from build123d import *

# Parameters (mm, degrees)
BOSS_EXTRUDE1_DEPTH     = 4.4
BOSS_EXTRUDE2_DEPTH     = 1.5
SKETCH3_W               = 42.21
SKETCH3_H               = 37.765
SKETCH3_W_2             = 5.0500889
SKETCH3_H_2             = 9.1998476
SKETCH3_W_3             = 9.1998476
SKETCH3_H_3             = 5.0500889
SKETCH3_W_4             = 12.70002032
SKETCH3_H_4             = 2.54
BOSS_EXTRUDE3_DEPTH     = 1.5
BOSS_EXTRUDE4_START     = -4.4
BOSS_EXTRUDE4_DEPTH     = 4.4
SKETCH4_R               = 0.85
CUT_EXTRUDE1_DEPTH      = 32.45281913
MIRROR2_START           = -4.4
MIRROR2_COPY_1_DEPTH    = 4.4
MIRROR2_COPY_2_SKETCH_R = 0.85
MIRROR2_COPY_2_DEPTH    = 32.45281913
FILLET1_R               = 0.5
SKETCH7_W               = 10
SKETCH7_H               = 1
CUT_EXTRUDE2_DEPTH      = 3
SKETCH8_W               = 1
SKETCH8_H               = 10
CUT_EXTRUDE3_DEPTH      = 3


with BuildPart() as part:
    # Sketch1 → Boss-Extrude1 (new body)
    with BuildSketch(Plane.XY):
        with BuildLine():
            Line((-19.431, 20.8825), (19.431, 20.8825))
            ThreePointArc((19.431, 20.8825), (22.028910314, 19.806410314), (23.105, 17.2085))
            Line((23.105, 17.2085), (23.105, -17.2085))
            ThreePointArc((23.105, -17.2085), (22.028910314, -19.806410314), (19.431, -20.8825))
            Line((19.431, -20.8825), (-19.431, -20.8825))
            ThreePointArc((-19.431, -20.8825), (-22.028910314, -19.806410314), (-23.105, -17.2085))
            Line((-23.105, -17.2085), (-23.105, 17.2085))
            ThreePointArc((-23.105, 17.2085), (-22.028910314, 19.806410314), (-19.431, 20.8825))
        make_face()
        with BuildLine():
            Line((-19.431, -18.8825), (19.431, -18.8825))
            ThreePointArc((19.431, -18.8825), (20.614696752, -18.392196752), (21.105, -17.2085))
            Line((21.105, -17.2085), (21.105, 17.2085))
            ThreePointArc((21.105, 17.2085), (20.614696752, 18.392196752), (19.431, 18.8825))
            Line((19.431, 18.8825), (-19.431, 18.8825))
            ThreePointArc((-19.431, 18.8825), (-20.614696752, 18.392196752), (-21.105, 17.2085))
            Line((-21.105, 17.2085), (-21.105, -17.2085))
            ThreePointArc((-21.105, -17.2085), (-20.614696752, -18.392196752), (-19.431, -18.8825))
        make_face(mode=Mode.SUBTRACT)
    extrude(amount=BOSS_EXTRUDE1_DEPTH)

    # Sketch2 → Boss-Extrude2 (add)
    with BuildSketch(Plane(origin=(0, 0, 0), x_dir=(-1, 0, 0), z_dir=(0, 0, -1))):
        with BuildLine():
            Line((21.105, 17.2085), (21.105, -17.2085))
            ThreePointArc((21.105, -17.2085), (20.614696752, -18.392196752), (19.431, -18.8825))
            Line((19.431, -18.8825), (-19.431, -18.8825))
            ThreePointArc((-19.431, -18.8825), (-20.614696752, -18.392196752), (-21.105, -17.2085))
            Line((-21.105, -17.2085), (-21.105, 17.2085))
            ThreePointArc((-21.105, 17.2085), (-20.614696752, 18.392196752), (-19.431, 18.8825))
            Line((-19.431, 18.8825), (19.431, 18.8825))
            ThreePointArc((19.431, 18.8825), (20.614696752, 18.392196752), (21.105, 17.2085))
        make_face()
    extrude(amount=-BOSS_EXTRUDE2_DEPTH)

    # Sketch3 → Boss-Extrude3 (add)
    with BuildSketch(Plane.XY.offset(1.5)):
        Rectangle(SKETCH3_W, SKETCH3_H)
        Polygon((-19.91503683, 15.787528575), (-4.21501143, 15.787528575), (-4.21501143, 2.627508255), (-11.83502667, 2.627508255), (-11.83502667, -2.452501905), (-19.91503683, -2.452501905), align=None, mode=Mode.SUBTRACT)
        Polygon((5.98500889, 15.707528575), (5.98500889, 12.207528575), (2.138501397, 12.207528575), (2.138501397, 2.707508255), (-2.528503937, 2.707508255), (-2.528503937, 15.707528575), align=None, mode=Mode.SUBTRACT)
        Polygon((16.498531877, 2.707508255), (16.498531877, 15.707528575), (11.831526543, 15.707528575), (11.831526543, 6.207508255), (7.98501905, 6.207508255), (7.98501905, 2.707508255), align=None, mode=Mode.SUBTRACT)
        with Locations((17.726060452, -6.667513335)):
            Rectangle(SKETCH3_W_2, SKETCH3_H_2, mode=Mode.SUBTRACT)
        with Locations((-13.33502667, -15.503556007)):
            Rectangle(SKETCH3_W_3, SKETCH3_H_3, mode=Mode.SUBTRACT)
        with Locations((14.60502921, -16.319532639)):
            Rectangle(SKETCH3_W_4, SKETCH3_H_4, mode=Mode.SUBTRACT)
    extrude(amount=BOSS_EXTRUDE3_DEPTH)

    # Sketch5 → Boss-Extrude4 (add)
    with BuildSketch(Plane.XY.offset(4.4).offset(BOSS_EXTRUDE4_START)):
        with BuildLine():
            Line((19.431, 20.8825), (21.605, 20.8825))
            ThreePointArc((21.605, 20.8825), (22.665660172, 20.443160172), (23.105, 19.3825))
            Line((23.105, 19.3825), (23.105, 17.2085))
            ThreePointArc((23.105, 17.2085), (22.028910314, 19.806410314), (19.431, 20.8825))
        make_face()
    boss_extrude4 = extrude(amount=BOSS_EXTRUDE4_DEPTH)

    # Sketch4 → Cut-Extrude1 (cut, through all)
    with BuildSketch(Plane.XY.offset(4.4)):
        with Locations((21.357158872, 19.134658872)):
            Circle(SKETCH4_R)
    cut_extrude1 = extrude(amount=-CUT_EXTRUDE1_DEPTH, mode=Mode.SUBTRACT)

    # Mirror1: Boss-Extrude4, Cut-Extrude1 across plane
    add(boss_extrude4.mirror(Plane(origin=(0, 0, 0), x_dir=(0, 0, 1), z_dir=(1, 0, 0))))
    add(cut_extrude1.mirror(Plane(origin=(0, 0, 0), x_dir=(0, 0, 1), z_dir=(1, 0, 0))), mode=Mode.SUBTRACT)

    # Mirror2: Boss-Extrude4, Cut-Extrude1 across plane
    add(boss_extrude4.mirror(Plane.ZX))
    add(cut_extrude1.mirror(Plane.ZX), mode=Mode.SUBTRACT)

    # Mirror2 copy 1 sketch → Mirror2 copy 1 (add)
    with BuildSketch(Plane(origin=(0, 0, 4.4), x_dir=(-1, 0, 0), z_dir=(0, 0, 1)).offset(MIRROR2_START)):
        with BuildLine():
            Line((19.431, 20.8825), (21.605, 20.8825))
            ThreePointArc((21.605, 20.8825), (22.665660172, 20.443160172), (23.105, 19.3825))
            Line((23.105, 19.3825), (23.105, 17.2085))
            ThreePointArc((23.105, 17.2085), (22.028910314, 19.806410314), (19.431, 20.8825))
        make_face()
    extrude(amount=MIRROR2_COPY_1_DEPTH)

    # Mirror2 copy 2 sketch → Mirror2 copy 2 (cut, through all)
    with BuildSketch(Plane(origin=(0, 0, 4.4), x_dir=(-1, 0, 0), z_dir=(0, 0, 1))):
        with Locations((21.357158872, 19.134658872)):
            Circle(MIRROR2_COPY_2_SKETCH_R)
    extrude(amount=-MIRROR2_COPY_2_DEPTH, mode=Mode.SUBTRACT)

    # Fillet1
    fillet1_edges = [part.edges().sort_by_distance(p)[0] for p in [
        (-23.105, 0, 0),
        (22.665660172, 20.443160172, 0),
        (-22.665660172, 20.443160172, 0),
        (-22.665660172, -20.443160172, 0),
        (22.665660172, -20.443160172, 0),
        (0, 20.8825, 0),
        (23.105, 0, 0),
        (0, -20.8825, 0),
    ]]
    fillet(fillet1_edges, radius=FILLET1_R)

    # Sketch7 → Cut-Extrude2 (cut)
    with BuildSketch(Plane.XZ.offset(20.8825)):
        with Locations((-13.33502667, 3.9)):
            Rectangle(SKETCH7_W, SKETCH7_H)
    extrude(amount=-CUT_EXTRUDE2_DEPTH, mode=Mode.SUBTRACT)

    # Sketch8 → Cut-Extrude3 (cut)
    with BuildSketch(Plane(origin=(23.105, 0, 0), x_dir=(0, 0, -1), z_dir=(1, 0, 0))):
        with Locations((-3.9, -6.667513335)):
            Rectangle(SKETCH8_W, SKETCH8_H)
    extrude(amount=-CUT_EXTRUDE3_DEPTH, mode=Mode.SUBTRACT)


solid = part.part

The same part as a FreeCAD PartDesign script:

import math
import FreeCAD as App
import Part
import Sketcher


def edges_at(feature, points):
    """Names of the edges that pass closest to the given points."""
    edges = feature.Shape.Edges
    near = lambda p: min(range(len(edges)), key=lambda i: edges[i].distToShape(Part.Vertex(*p))[0])
    return sorted({f"Edge{near(p) + 1}" for p in points})


def add_polygon(sketch, points):
    """Adds a closed chain of lines whose ends are joined by coincident constraints."""
    first, n = sketch.GeometryCount, len(points)
    for a, b in zip(points, points[1:] + points[:1]):
        sketch.addGeometry(Part.LineSegment(App.Vector(*a, 0), App.Vector(*b, 0)), False)
    for i in range(n):
        sketch.addConstraint(Sketcher.Constraint("Coincident", first + i, 2, first + (i + 1) % n, 1))

doc = App.newDocument("Part")
params = doc.addObject("Spreadsheet::Sheet", "Params")
for row, (alias, value) in enumerate([
    ("pad1_length", "4.4 mm"),
    ("pad2_length", "1.5 mm"),
    ("sketch3_height", "3.5 mm"),
    ("sketch3_width", "42.21 mm"),
    ("sketch3_height2", "2.54 mm"),
    ("pad3_length", "1.5 mm"),
    ("sketch4_radius", "1.5 mm"),
    ("pad4_length", "4.4 mm"),
    ("sketch5_diameter", "1.7 mm"),
    ("sketch6_radius", "1.5 mm"),
    ("pad5_length", "4.4 mm"),
    ("sketch7_diameter", "1.7 mm"),
    ("fillet_radius", "0.5 mm"),
    ("sketch8_width", "10 mm"),
    ("sketch8_height", "1 mm"),
    ("pocket3_length", "3 mm"),
    ("sketch9_width", "10 mm"),
    ("sketch9_height", "1 mm"),
    ("pocket4_length", "3 mm"),
], start=1):
    params.set(f"A{row}", alias)
    params.set(f"B{row}", "=" + value)
    params.setAlias(f"B{row}", alias)

body = doc.addObject("PartDesign::Body", "Body")

sketch1 = body.newObject("Sketcher::SketchObject", "Sketch")
sketch1.AttachmentSupport = (doc.getObject("XY_Plane"), [""])
sketch1.MapMode = "FlatFace"
sketch1.addGeometry([
    Part.LineSegment(App.Vector(19.4, 20.9, 0), App.Vector(-19.4, 20.9, 0)),
    Part.ArcOfCircle(Part.Circle(App.Vector(-19.4, 17.2, 0), App.Vector(0, 0, 1), 3.7), math.radians(90), math.radians(180)),
    Part.LineSegment(App.Vector(-23.1, 17.2, 0), App.Vector(-23.1, -17.2, 0)),
    Part.ArcOfCircle(Part.Circle(App.Vector(-19.4, -17.2, 0), App.Vector(0, 0, 1), 3.7), math.radians(180), math.radians(270)),
    Part.LineSegment(App.Vector(-19.4, -20.9, 0), App.Vector(19.4, -20.9, 0)),
    Part.ArcOfCircle(Part.Circle(App.Vector(19.4, -17.2, 0), App.Vector(0, 0, 1), 3.7), math.radians(-90), math.radians(0)),
    Part.LineSegment(App.Vector(23.1, -17.2, 0), App.Vector(23.1, 17.2, 0)),
    Part.ArcOfCircle(Part.Circle(App.Vector(19.4, 17.2, 0), App.Vector(0, 0, 1), 3.7), math.radians(0), math.radians(90)),
    Part.ArcOfCircle(Part.Circle(App.Vector(-19.4, -17.2, 0), App.Vector(0, 0, 1), 1.7), math.radians(180), math.radians(270)),
    Part.LineSegment(App.Vector(-21.1, -17.2, 0), App.Vector(-21.1, 17.2, 0)),
    Part.ArcOfCircle(Part.Circle(App.Vector(-19.4, 17.2, 0), App.Vector(0, 0, 1), 1.7), math.radians(90), math.radians(180)),
    Part.LineSegment(App.Vector(-19.4, 18.9, 0), App.Vector(19.4, 18.9, 0)),
    Part.ArcOfCircle(Part.Circle(App.Vector(19.4, 17.2, 0), App.Vector(0, 0, 1), 1.7), math.radians(0), math.radians(90)),
    Part.LineSegment(App.Vector(21.1, 17.2, 0), App.Vector(21.1, -17.2, 0)),
    Part.ArcOfCircle(Part.Circle(App.Vector(19.4, -17.2, 0), App.Vector(0, 0, 1), 1.7), math.radians(-90), math.radians(0)),
    Part.LineSegment(App.Vector(19.4, -18.9, 0), App.Vector(-19.4, -18.9, 0)),
], False)
sketch1.addConstraint([
    Sketcher.Constraint("Tangent", 0, 2, 1, 1),
    Sketcher.Constraint("Tangent", 1, 2, 2, 1),
    Sketcher.Constraint("Tangent", 2, 2, 3, 1),
    Sketcher.Constraint("Tangent", 3, 2, 4, 1),
    Sketcher.Constraint("Tangent", 4, 2, 5, 1),
    Sketcher.Constraint("Tangent", 5, 2, 6, 1),
    Sketcher.Constraint("Tangent", 6, 2, 7, 1),
    Sketcher.Constraint("Tangent", 7, 2, 0, 1),
    Sketcher.Constraint("Tangent", 8, 1, 9, 1),
    Sketcher.Constraint("Tangent", 9, 2, 10, 2),
    Sketcher.Constraint("Tangent", 10, 1, 11, 1),
    Sketcher.Constraint("Tangent", 11, 2, 12, 2),
    Sketcher.Constraint("Tangent", 12, 1, 13, 1),
    Sketcher.Constraint("Tangent", 13, 2, 14, 2),
    Sketcher.Constraint("Tangent", 14, 1, 15, 1),
    Sketcher.Constraint("Tangent", 15, 2, 8, 2),
    Sketcher.Constraint("Horizontal", 0),
    Sketcher.Constraint("Vertical", 2),
    Sketcher.Constraint("Horizontal", 4),
    Sketcher.Constraint("Vertical", 6),
    Sketcher.Constraint("Vertical", 9),
    Sketcher.Constraint("Horizontal", 11),
    Sketcher.Constraint("Vertical", 13),
    Sketcher.Constraint("Horizontal", 15),
    Sketcher.Constraint("Coincident", 8, 3, 3, 3),
    Sketcher.Constraint("Coincident", 10, 3, 1, 3),
    Sketcher.Constraint("Coincident", 12, 3, 7, 3),
    Sketcher.Constraint("Equal", 1, 3),
    Sketcher.Constraint("Equal", 3, 5),
    Sketcher.Constraint("Equal", 5, 7),
    Sketcher.Constraint("Equal", 12, 14),
    Sketcher.Constraint("Symmetric", 1, 3, 5, 3, -1, 1),
    Sketcher.Constraint("Radius", 1, 3.674),
    Sketcher.Constraint("Radius", 8, 1.674),
    Sketcher.Constraint("DistanceX", 0, 2, 0, 1, 38.862),
    Sketcher.Constraint("DistanceY", 2, 2, 2, 1, 34.417),
])
pad1 = body.newObject("PartDesign::Pad", "Pad")
pad1.Profile = sketch1
pad1.setExpression("Length", "Params.pad1_length")

sketch2 = body.newObject("Sketcher::SketchObject", "Sketch001")
sketch2.AttachmentSupport = (doc.getObject("XY_Plane"), [""])
sketch2.MapMode = "FlatFace"
sketch2.addGeometry([
    Part.LineSegment(App.Vector(-21.1, -17.2, 0), App.Vector(-21.1, 17.2, 0)),
    Part.ArcOfCircle(Part.Circle(App.Vector(-19.4, 17.2, 0), App.Vector(0, 0, 1), 1.7), math.radians(90), math.radians(180)),
    Part.LineSegment(App.Vector(-19.4, 18.9, 0), App.Vector(19.4, 18.9, 0)),
    Part.ArcOfCircle(Part.Circle(App.Vector(19.4, 17.2, 0), App.Vector(0, 0, 1), 1.7), math.radians(0), math.radians(90)),
    Part.LineSegment(App.Vector(21.1, 17.2, 0), App.Vector(21.1, -17.2, 0)),
    Part.ArcOfCircle(Part.Circle(App.Vector(19.4, -17.2, 0), App.Vector(0, 0, 1), 1.7), math.radians(-90), math.radians(0)),
    Part.LineSegment(App.Vector(19.4, -18.9, 0), App.Vector(-19.4, -18.9, 0)),
    Part.ArcOfCircle(Part.Circle(App.Vector(-19.4, -17.2, 0), App.Vector(0, 0, 1), 1.7), math.radians(180), math.radians(270)),
], False)
sketch2.addConstraint([
    Sketcher.Constraint("Tangent", 0, 2, 1, 2),
    Sketcher.Constraint("Tangent", 1, 1, 2, 1),
    Sketcher.Constraint("Tangent", 2, 2, 3, 2),
    Sketcher.Constraint("Tangent", 3, 1, 4, 1),
    Sketcher.Constraint("Tangent", 4, 2, 5, 2),
    Sketcher.Constraint("Tangent", 5, 1, 6, 1),
    Sketcher.Constraint("Tangent", 6, 2, 7, 2),
    Sketcher.Constraint("Tangent", 7, 1, 0, 1),
    Sketcher.Constraint("Vertical", 0),
    Sketcher.Constraint("Horizontal", 2),
    Sketcher.Constraint("Vertical", 4),
    Sketcher.Constraint("Horizontal", 6),
    Sketcher.Constraint("Equal", 1, 3),
    Sketcher.Constraint("Equal", 3, 5),
    Sketcher.Constraint("Equal", 5, 7),
    Sketcher.Constraint("Symmetric", 1, 3, 5, 3, -1, 1),
    Sketcher.Constraint("Radius", 1, 1.674),
    Sketcher.Constraint("DistanceX", 2, 1, 2, 2, 38.862),
    Sketcher.Constraint("DistanceY", 0, 1, 0, 2, 34.417),
])
pad2 = body.newObject("PartDesign::Pad", "Pad001")
pad2.Profile = sketch2
pad2.setExpression("Length", "Params.pad2_length")

sketch3 = body.newObject("Sketcher::SketchObject", "Sketch002")
sketch3.AttachmentSupport = (doc.getObject("XY_Plane"), [""])
sketch3.MapMode = "FlatFace"
sketch3.AttachmentOffset = App.Placement(App.Vector(0, 0, 1.5), App.Rotation())
add_polygon(sketch3, [(-21.1, 18.9), (-21.1, -18.9), (21.1, -18.9), (21.1, 18.9)])
add_polygon(sketch3, [(-8.7, -18), (-17.9, -18), (-17.9, -13), (-8.7, -13)])
add_polygon(sketch3, [(21, -17.6), (8.3, -17.6), (8.3, -15), (21, -15)])
add_polygon(sketch3, [(20.3, -11.3), (15.2, -11.3), (15.2, -2.1), (20.3, -2.1)])
add_polygon(sketch3, [(-19.9, -2.5), (-19.9, 15.8), (-4.2, 15.8), (-4.2, 2.6), (-11.8, 2.6), (-11.8, -2.5)])
add_polygon(sketch3, [(-2.5, 15.7), (6, 15.7), (6, 12.2), (2.1, 12.2), (2.1, 2.7), (-2.5, 2.7)])
add_polygon(sketch3, [(16.5, 15.7), (16.5, 2.7), (8, 2.7), (8, 6.2), (11.8, 6.2), (11.8, 15.7)])
sketch3.addConstraint([
    Sketcher.Constraint("Vertical", 0),
    Sketcher.Constraint("Horizontal", 1),
    Sketcher.Constraint("Vertical", 2),
    Sketcher.Constraint("Horizontal", 3),
    Sketcher.Constraint("Horizontal", 4),
    Sketcher.Constraint("Vertical", 5),
    Sketcher.Constraint("Horizontal", 6),
    Sketcher.Constraint("Vertical", 7),
    Sketcher.Constraint("Horizontal", 8),
    Sketcher.Constraint("Vertical", 9),
    Sketcher.Constraint("Horizontal", 10),
    Sketcher.Constraint("Vertical", 11),
    Sketcher.Constraint("Horizontal", 12),
    Sketcher.Constraint("Vertical", 13),
    Sketcher.Constraint("Horizontal", 14),
    Sketcher.Constraint("Vertical", 15),
    Sketcher.Constraint("Vertical", 16),
    Sketcher.Constraint("Horizontal", 17),
    Sketcher.Constraint("Vertical", 18),
    Sketcher.Constraint("Horizontal", 19),
    Sketcher.Constraint("Vertical", 20),
    Sketcher.Constraint("Horizontal", 21),
    Sketcher.Constraint("Horizontal", 22),
    Sketcher.Constraint("Vertical", 23),
    Sketcher.Constraint("Horizontal", 24),
    Sketcher.Constraint("Vertical", 25),
    Sketcher.Constraint("Horizontal", 26),
    Sketcher.Constraint("Vertical", 27),
    Sketcher.Constraint("Vertical", 28),
    Sketcher.Constraint("Horizontal", 29),
    Sketcher.Constraint("Vertical", 30),
    Sketcher.Constraint("Horizontal", 31),
    Sketcher.Constraint("Vertical", 32),
    Sketcher.Constraint("Horizontal", 33),
    Sketcher.Constraint("Symmetric", 0, 2, 2, 2, -1, 1),
    Sketcher.Constraint("Horizontal", 26, 2, 28, 2),
    Sketcher.Constraint("Horizontal", 27, 2, 32, 2),
    Sketcher.Constraint("Equal", 22, 29),
    Sketcher.Constraint("Equal", 24, 31),
    Sketcher.Constraint("Equal", 14, 5),
    Sketcher.Constraint("Equal", 6, 13),
    Sketcher.Constraint("Equal", 23, 30),
    Sketcher.Constraint("DistanceY", 23, 2, 23, 1, 3.5),
    Sketcher.Constraint("DistanceX", 1, 1, 1, 2, 42.21),
    Sketcher.Constraint("DistanceY", 9, 1, 9, 2, 2.54),
    Sketcher.Constraint("DistanceY", 0, 2, 0, 1, 37.765),
    Sketcher.Constraint("DistanceY", 22, 2, 17, 2, 0.08),
    Sketcher.Constraint("DistanceY", 18, 2, 25, 2, 0.08),
    Sketcher.Constraint("DistanceX", 8, 2, 8, 1, 12.70002),
    Sketcher.Constraint("DistanceX", 12, 2, 12, 1, 5.050089),
    Sketcher.Constraint("DistanceX", 21, 2, 21, 1, 8.08001),
    Sketcher.Constraint("DistanceY", 16, 1, 16, 2, 18.24003),
    Sketcher.Constraint("DistanceY", 18, 2, 18, 1, 13.16002),
    Sketcher.Constraint("DistanceY", 4, 2, -1, 1, 18.0286),
    Sketcher.Constraint("DistanceY", 20, 2, -1, 1, 2.452502),
    Sketcher.Constraint("DistanceX", -1, 1, 24, 2, 2.138501),
    Sketcher.Constraint("DistanceX", 4, 2, 4, 1, 9.199848),
    Sketcher.Constraint("DistanceX", 17, 1, 17, 2, 15.700025),
    Sketcher.Constraint("DistanceX", 22, 1, 22, 2, 8.513513),
    Sketcher.Constraint("DistanceX", 24, 2, 24, 1, 3.846507),
    Sketcher.Constraint("DistanceX", 4, 2, -1, 1, 17.93495),
    Sketcher.Constraint("DistanceX", -1, 1, 8, 2, 8.255019),
    Sketcher.Constraint("DistanceY", 13, 2, -1, 1, 2.06759),
    Sketcher.Constraint("DistanceX", 17, 2, -1, 1, 4.215011),
    Sketcher.Constraint("DistanceX", -1, 1, 28, 2, 16.498532),
    Sketcher.Constraint("DistanceY", 8, 2, 6, 2, 4.611021),
    Sketcher.Constraint("DistanceX", 31, 2, 13, 2, 3.369489),
])
sketch3.setExpression("Constraints[76]", "Params.sketch3_height")
sketch3.setExpression("Constraints[77]", "Params.sketch3_width")
sketch3.setExpression("Constraints[78]", "Params.sketch3_height2")
pad3 = body.newObject("PartDesign::Pad", "Pad002")
pad3.Profile = sketch3
pad3.setExpression("Length", "Params.pad3_length")

sketch4 = body.newObject("Sketcher::SketchObject", "Sketch003")
sketch4.AttachmentSupport = (doc.getObject("XY_Plane"), [""])
sketch4.MapMode = "FlatFace"
sketch4.addGeometry([
    Part.LineSegment(App.Vector(21.6, 20.9, 0), App.Vector(19.4, 20.9, 0)),
    Part.ArcOfCircle(Part.Circle(App.Vector(19.4, 17.2, 0), App.Vector(0, 0, 1), 3.7), math.radians(0), math.radians(90)),
    Part.LineSegment(App.Vector(23.1, 17.2, 0), App.Vector(23.1, 19.4, 0)),
    Part.ArcOfCircle(Part.Circle(App.Vector(21.6, 19.4, 0), App.Vector(0, 0, 1), 1.5), math.radians(0), math.radians(90)),
], False)
sketch4.addConstraint([
    Sketcher.Constraint("Tangent", 0, 2, 1, 2),
    Sketcher.Constraint("Tangent", 1, 1, 2, 1),
    Sketcher.Constraint("Tangent", 2, 2, 3, 1),
    Sketcher.Constraint("Tangent", 3, 2, 0, 1),
    Sketcher.Constraint("Horizontal", 0),
    Sketcher.Constraint("Vertical", 2),
    Sketcher.Constraint("Radius", 3, 1.5),
    Sketcher.Constraint("Radius", 1, 3.674),
    Sketcher.Constraint("DistanceX", -1, 1, 1, 3, 19.431),
    Sketcher.Constraint("DistanceY", -1, 1, 1, 3, 17.2085),
])
sketch4.setExpression("Constraints[6]", "Params.sketch4_radius")
pad4 = body.newObject("PartDesign::Pad", "Pad003")
pad4.Profile = sketch4
pad4.setExpression("Length", "Params.pad4_length")

sketch5 = body.newObject("Sketcher::SketchObject", "Sketch004")
sketch5.AttachmentSupport = (doc.getObject("XY_Plane"), [""])
sketch5.MapMode = "FlatFace"
sketch5.AttachmentOffset = App.Placement(App.Vector(0, 0, 4.4), App.Rotation())
sketch5.addGeometry(Part.Circle(App.Vector(21.4, 19.1, 0), App.Vector(0, 0, 1), 0.8), False)
sketch5.addConstraint([
    Sketcher.Constraint("Diameter", 0, 1.7),
    Sketcher.Constraint("DistanceX", -1, 1, 0, 3, 21.357159),
    Sketcher.Constraint("DistanceY", -1, 1, 0, 3, 19.134659),
])
sketch5.setExpression("Constraints[0]", "Params.sketch5_diameter")
pocket1 = body.newObject("PartDesign::Pocket", "Pocket")
pocket1.Profile = sketch5
pocket1.Type = "ThroughAll"
doc.recompute()

mirrored = body.newObject("PartDesign::Mirrored", "Mirrored")
mirrored.Originals = [pad4, pocket1]
mirrored.MirrorPlane = (doc.getObject("YZ_Plane"), [""])
body.Tip = mirrored
doc.recompute()

mirrored2 = body.newObject("PartDesign::Mirrored", "Mirrored001")
mirrored2.Originals = [pad4, pocket1]
mirrored2.MirrorPlane = (doc.getObject("XZ_Plane"), [""])
body.Tip = mirrored2

sketch6 = body.newObject("Sketcher::SketchObject", "Sketch005")
sketch6.AttachmentSupport = (doc.getObject("XY_Plane"), [""])
sketch6.MapMode = "FlatFace"
sketch6.addGeometry([
    Part.LineSegment(App.Vector(-21.6, -20.9, 0), App.Vector(-19.4, -20.9, 0)),
    Part.ArcOfCircle(Part.Circle(App.Vector(-19.4, -17.2, 0), App.Vector(0, 0, 1), 3.7), math.radians(180), math.radians(270)),
    Part.LineSegment(App.Vector(-23.1, -17.2, 0), App.Vector(-23.1, -19.4, 0)),
    Part.ArcOfCircle(Part.Circle(App.Vector(-21.6, -19.4, 0), App.Vector(0, 0, 1), 1.5), math.radians(180), math.radians(270)),
], False)
sketch6.addConstraint([
    Sketcher.Constraint("Tangent", 0, 2, 1, 2),
    Sketcher.Constraint("Tangent", 1, 1, 2, 1),
    Sketcher.Constraint("Tangent", 2, 2, 3, 1),
    Sketcher.Constraint("Tangent", 3, 2, 0, 1),
    Sketcher.Constraint("Horizontal", 0),
    Sketcher.Constraint("Vertical", 2),
    Sketcher.Constraint("Radius", 3, 1.5),
    Sketcher.Constraint("Radius", 1, 3.674),
    Sketcher.Constraint("DistanceX", 1, 3, -1, 1, 19.431),
    Sketcher.Constraint("DistanceY", 1, 3, -1, 1, 17.2085),
])
sketch6.setExpression("Constraints[6]", "Params.sketch6_radius")
pad5 = body.newObject("PartDesign::Pad", "Pad004")
pad5.Profile = sketch6
pad5.setExpression("Length", "Params.pad5_length")

sketch7 = body.newObject("Sketcher::SketchObject", "Sketch006")
sketch7.AttachmentSupport = (doc.getObject("XY_Plane"), [""])
sketch7.MapMode = "FlatFace"
sketch7.AttachmentOffset = App.Placement(App.Vector(0, 0, 4.4), App.Rotation())
sketch7.addGeometry(Part.Circle(App.Vector(-21.4, -19.1, 0), App.Vector(0, 0, 1), 0.8), False)
sketch7.addConstraint([
    Sketcher.Constraint("Diameter", 0, 1.7),
    Sketcher.Constraint("DistanceX", 0, 3, -1, 1, 21.357159),
    Sketcher.Constraint("DistanceY", 0, 3, -1, 1, 19.134659),
])
sketch7.setExpression("Constraints[0]", "Params.sketch7_diameter")
pocket2 = body.newObject("PartDesign::Pocket", "Pocket001")
pocket2.Profile = sketch7
pocket2.Type = "ThroughAll"
doc.recompute()

fillet = body.newObject("PartDesign::Fillet", "Fillet")
fillet.Base = (pocket2, edges_at(pocket2, [
    (-23.105, 0, 0),
    (22.666, 20.443, 0),
    (-22.666, 20.443, 0),
    (-22.666, -20.443, 0),
    (22.666, -20.443, 0),
    (0, 20.883, 0),
    (23.105, 0, 0),
    (0, -20.883, 0),
]))
fillet.setExpression("Radius", "Params.fillet_radius")

sketch8 = body.newObject("Sketcher::SketchObject", "Sketch007")
sketch8.AttachmentSupport = (doc.getObject("XZ_Plane"), [""])
sketch8.MapMode = "FlatFace"
sketch8.AttachmentOffset = App.Placement(App.Vector(0, 0, 20.8825), App.Rotation())
add_polygon(sketch8, [(-18.3, 4.4), (-18.3, 3.4), (-8.3, 3.4), (-8.3, 4.4)])
sketch8.addConstraint([
    Sketcher.Constraint("Vertical", 0),
    Sketcher.Constraint("Horizontal", 1),
    Sketcher.Constraint("Vertical", 2),
    Sketcher.Constraint("Horizontal", 3),
    Sketcher.Constraint("DistanceX", 1, 1, 1, 2, 10.0),
    Sketcher.Constraint("DistanceY", 0, 2, 0, 1, 1.0),
    Sketcher.Constraint("DistanceY", -1, 1, 0, 2, 3.4),
    Sketcher.Constraint("DistanceX", 0, 2, -1, 1, 18.335027),
])
sketch8.setExpression("Constraints[8]", "Params.sketch8_width")
sketch8.setExpression("Constraints[9]", "Params.sketch8_height")
pocket3 = body.newObject("PartDesign::Pocket", "Pocket002")
pocket3.Profile = sketch8
pocket3.setExpression("Length", "Params.pocket3_length")

sketch9 = body.newObject("Sketcher::SketchObject", "Sketch008")
sketch9.AttachmentSupport = (doc.getObject("YZ_Plane"), [""])
sketch9.MapMode = "FlatFace"
sketch9.AttachmentOffset = App.Placement(App.Vector(0, 0, 23.105), App.Rotation())
add_polygon(sketch9, [(-1.7, 4.4), (-11.7, 4.4), (-11.7, 3.4), (-1.7, 3.4)])
sketch9.addConstraint([
    Sketcher.Constraint("Horizontal", 0),
    Sketcher.Constraint("Vertical", 1),
    Sketcher.Constraint("Horizontal", 2),
    Sketcher.Constraint("Vertical", 3),
    Sketcher.Constraint("DistanceX", 0, 2, 0, 1, 10.0),
    Sketcher.Constraint("DistanceY", 1, 2, 1, 1, 1.0),
    Sketcher.Constraint("DistanceY", -1, 1, 0, 2, 4.4),
    Sketcher.Constraint("DistanceX", 0, 2, -1, 1, 11.667513),
])
sketch9.setExpression("Constraints[8]", "Params.sketch9_width")
sketch9.setExpression("Constraints[9]", "Params.sketch9_height")
pocket4 = body.newObject("PartDesign::Pocket", "Pocket003")
pocket4.Profile = sketch9
pocket4.setExpression("Length", "Params.pocket4_length")

doc.recompute()
